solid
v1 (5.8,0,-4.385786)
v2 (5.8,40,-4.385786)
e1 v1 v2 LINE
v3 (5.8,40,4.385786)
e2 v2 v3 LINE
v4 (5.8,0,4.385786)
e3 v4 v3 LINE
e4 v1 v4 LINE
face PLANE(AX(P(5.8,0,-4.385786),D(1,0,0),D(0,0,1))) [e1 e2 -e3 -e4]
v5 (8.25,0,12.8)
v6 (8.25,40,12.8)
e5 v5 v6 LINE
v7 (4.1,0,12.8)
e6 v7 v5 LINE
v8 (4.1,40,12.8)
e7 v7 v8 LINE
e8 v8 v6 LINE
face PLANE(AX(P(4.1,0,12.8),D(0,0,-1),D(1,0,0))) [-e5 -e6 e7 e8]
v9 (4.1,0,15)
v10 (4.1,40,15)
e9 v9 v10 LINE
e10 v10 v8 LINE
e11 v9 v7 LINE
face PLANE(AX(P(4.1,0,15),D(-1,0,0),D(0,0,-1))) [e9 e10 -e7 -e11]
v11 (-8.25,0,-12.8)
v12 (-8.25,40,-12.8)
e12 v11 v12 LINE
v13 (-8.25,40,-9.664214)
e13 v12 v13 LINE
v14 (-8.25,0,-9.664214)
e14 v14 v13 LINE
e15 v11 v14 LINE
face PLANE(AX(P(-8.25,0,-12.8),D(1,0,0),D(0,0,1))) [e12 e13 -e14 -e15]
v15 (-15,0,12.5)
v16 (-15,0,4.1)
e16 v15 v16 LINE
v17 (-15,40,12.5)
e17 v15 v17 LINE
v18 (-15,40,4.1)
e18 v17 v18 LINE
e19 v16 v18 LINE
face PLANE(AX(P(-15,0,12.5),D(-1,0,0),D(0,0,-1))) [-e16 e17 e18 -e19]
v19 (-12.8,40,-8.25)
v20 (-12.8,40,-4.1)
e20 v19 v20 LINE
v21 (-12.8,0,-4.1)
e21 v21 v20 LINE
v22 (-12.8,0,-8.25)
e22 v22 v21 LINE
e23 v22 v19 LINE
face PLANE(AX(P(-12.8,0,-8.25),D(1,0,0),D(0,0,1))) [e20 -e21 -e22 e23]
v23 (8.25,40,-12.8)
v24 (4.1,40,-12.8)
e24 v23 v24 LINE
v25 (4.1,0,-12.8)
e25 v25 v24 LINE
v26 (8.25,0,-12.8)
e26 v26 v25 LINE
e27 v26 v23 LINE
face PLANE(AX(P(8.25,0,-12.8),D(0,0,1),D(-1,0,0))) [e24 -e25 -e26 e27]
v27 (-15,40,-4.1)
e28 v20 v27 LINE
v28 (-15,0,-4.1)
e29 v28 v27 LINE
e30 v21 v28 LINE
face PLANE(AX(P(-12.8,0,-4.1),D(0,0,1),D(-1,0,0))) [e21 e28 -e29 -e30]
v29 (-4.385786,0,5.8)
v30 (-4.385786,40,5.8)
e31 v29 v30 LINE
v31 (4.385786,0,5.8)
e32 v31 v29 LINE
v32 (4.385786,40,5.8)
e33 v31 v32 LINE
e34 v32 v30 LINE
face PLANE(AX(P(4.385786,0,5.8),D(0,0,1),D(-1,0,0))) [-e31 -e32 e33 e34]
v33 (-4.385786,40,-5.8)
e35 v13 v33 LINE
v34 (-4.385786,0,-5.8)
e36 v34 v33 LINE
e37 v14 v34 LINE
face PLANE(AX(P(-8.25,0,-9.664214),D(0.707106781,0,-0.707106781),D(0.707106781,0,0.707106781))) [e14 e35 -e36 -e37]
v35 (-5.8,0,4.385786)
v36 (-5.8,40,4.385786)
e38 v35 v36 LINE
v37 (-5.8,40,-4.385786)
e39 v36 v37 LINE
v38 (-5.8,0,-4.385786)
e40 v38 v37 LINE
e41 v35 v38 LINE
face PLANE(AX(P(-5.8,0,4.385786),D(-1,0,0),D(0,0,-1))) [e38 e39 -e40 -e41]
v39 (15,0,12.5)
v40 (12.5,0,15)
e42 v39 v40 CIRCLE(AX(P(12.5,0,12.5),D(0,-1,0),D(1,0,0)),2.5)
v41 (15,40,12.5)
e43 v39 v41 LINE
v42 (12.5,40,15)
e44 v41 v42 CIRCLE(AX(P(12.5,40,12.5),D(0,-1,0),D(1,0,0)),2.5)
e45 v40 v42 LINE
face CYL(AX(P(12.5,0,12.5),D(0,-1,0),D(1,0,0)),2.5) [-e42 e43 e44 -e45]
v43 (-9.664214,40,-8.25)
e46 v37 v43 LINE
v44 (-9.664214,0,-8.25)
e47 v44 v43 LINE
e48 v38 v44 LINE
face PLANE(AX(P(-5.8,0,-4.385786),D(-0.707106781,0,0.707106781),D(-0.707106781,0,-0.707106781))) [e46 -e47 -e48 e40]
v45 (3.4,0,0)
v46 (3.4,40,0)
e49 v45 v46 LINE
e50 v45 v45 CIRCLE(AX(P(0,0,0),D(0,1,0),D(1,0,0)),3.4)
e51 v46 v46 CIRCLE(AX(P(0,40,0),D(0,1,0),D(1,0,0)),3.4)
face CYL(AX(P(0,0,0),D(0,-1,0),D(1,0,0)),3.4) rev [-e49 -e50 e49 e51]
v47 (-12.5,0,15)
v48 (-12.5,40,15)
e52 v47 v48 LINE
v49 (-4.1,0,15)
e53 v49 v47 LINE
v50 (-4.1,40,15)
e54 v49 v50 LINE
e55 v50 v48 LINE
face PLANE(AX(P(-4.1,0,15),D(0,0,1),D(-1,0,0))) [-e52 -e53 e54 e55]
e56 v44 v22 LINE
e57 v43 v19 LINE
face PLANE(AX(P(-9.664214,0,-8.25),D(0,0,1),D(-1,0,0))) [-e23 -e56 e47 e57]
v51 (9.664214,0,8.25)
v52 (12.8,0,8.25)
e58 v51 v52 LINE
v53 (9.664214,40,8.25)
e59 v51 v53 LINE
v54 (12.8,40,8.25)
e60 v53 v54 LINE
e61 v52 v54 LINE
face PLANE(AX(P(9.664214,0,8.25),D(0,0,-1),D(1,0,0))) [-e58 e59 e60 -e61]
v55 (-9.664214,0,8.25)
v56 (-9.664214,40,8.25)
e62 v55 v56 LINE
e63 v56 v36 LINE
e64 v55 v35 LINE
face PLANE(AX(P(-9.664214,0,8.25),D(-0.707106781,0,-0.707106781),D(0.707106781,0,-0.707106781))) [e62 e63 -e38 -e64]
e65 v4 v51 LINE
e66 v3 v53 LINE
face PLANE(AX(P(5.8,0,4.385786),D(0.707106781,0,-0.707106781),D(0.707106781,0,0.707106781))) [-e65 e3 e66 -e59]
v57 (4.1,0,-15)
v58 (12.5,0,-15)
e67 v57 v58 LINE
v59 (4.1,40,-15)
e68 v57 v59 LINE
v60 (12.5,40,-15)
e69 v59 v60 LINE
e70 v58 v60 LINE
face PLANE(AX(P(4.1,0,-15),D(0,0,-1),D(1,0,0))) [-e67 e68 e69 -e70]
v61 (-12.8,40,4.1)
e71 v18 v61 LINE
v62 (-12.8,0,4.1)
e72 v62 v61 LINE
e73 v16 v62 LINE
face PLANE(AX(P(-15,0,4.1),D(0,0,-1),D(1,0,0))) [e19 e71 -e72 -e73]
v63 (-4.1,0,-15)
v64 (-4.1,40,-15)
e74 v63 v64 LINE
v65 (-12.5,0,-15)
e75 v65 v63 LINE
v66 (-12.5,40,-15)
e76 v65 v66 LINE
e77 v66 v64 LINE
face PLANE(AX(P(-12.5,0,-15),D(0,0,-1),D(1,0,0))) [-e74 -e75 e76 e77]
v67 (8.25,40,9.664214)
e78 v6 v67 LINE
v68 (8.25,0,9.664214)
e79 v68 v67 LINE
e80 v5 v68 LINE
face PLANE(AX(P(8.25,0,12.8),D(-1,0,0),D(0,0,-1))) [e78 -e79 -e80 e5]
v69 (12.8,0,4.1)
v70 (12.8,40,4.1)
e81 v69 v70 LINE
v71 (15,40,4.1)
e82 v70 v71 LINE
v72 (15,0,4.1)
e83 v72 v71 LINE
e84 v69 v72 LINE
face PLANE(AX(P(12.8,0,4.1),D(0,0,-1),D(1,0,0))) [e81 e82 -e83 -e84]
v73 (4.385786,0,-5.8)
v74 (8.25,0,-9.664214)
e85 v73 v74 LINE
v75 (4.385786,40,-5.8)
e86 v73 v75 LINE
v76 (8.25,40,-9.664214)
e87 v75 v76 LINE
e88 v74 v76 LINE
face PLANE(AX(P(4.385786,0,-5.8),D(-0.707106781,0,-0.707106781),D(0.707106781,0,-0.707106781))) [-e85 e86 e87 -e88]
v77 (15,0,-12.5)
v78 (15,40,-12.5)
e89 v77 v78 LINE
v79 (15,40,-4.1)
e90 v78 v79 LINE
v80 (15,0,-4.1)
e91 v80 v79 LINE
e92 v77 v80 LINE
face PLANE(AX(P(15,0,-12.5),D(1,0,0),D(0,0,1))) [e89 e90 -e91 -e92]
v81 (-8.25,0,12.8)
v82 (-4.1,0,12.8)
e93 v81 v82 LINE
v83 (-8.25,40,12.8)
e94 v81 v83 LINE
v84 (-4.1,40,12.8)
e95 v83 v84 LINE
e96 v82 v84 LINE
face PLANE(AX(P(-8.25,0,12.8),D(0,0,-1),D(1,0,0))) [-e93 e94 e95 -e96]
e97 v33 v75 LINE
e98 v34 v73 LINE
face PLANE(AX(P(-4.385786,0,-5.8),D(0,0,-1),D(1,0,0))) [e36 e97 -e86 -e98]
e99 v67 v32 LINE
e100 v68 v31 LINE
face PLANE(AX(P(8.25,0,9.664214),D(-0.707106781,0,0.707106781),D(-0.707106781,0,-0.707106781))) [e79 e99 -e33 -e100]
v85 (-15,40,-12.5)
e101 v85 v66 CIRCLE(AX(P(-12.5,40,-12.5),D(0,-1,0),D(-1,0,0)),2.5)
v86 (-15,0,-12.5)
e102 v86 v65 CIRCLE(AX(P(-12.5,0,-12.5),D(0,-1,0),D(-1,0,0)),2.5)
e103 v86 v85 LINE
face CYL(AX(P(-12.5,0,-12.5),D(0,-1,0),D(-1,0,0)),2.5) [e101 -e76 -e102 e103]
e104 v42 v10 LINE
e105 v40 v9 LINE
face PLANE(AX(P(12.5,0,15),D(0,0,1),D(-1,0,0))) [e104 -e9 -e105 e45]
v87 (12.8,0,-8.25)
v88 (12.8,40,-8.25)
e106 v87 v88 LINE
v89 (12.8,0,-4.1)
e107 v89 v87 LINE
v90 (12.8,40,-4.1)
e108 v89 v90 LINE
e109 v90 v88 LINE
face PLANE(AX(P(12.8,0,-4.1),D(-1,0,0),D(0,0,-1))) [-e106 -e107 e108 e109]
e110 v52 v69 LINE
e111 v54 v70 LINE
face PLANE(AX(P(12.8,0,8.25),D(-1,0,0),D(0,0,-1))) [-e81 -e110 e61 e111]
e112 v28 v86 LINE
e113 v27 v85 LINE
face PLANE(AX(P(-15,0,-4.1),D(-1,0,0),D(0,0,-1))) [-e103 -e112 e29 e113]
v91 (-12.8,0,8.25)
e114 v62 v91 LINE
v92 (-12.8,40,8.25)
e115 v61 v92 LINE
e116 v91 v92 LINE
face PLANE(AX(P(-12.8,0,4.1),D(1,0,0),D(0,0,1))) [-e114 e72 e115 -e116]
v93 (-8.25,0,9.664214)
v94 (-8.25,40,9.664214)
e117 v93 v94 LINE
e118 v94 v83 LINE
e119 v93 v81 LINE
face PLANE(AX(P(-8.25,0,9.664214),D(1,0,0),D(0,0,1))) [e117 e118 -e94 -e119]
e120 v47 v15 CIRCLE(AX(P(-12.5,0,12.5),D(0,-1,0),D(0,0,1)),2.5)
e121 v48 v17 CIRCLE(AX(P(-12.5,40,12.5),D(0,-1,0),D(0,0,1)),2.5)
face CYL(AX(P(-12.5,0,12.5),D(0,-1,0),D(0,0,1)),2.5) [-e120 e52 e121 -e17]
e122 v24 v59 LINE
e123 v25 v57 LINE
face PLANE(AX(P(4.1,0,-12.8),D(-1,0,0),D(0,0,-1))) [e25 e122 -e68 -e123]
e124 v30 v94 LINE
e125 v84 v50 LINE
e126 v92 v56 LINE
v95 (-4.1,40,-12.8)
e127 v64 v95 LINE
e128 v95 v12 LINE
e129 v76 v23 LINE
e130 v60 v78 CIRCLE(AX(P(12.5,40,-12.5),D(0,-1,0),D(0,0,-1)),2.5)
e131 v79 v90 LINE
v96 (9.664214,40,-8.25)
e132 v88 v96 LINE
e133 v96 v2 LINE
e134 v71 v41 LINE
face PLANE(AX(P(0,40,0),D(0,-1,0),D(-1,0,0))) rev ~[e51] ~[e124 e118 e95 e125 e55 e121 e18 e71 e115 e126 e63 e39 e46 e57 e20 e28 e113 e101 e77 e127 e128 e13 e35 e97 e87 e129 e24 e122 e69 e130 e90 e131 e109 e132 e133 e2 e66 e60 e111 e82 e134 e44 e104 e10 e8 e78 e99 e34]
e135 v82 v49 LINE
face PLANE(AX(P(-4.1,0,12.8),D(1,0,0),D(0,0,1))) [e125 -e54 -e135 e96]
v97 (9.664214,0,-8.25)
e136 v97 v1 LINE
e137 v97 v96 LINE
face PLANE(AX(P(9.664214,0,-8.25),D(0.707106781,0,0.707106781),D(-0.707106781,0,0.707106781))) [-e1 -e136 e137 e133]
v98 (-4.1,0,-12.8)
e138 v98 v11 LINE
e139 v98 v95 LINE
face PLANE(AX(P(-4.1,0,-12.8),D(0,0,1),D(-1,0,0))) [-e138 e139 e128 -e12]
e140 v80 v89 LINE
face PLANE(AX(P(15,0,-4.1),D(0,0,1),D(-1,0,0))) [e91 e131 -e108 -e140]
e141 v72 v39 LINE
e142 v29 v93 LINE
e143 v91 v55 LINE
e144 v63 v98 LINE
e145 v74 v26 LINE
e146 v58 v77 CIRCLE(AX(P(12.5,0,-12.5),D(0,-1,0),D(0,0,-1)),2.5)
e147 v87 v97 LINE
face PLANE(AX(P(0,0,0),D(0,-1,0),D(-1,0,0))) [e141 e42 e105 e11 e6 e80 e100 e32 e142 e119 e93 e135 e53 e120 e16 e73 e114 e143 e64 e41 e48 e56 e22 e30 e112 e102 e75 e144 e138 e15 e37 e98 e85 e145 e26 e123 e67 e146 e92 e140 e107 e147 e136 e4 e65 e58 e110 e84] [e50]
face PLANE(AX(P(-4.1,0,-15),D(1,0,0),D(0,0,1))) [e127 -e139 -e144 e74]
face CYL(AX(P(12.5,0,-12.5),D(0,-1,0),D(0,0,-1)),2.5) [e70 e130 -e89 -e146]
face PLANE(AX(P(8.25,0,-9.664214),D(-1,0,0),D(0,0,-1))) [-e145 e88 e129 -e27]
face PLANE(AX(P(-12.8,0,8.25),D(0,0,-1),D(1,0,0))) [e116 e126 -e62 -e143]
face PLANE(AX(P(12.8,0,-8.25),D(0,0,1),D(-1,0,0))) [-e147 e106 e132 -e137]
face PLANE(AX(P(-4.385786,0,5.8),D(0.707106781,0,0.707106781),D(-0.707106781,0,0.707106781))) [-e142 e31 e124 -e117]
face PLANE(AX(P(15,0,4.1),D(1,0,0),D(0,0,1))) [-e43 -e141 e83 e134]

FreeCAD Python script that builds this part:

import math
import FreeCAD as App
import Part
import Sketcher
Q = App.Units.Quantity

doc = App.newDocument("Part")
params = doc.addObject("Spreadsheet::Sheet", "Params")
for row, (alias, value) in enumerate([
    ("sketch1_diameter", "6.8 mm"),
    ("sketch1_radius", "2.5 mm"),
    ("sketch1_width", "2.2 mm"),
    ("sketch1_width2", "8.4 mm"),
    ("sketch1_width3", "4.15 mm"),
    ("pad1_length", "40 mm"),
], start=1):
    params.set(f"A{row}", alias)
    params.set(f"B{row}", "=" + value)
    params.setAlias(f"B{row}", alias)

body = doc.addObject("PartDesign::Body", "Body")

sketch1 = body.newObject("Sketcher::SketchObject", "Sketch")
sketch1.AttachmentSupport = (doc.getObject("XZ_Plane"), [""])
sketch1.MapMode = "FlatFace"
sketch1.addGeometry([
    Part.LineSegment(App.Vector(5.8, 4.4, 0), App.Vector(5.8, -4.4, 0)),
    Part.LineSegment(App.Vector(5.8, -4.4, 0), App.Vector(9.7, -8.2, 0)),
    Part.LineSegment(App.Vector(9.7, -8.2, 0), App.Vector(12.8, -8.2, 0)),
    Part.LineSegment(App.Vector(12.8, -8.2, 0), App.Vector(12.8, -4.1, 0)),
    Part.LineSegment(App.Vector(12.8, -4.1, 0), App.Vector(15, -4.1, 0)),
    Part.LineSegment(App.Vector(15, -4.1, 0), App.Vector(15, -12.5, 0)),
    Part.ArcOfCircle(Part.Circle(App.Vector(12.5, -12.5, 0), App.Vector(0, 0, 1), 2.5), math.radians(-90), math.radians(0)),
    Part.LineSegment(App.Vector(12.5, -15, 0), App.Vector(4.1, -15, 0)),
    Part.LineSegment(App.Vector(4.1, -15, 0), App.Vector(4.1, -12.8, 0)),
    Part.LineSegment(App.Vector(4.1, -12.8, 0), App.Vector(8.2, -12.8, 0)),
    Part.LineSegment(App.Vector(8.2, -12.8, 0), App.Vector(8.2, -9.7, 0)),
    Part.LineSegment(App.Vector(8.2, -9.7, 0), App.Vector(4.4, -5.8, 0)),
    Part.LineSegment(App.Vector(4.4, -5.8, 0), App.Vector(-4.4, -5.8, 0)),
    Part.LineSegment(App.Vector(-4.4, -5.8, 0), App.Vector(-8.2, -9.7, 0)),
    Part.LineSegment(App.Vector(-8.2, -9.7, 0), App.Vector(-8.2, -12.8, 0)),
    Part.LineSegment(App.Vector(-8.2, -12.8, 0), App.Vector(-4.1, -12.8, 0)),
    Part.LineSegment(App.Vector(-4.1, -12.8, 0), App.Vector(-4.1, -15, 0)),
    Part.LineSegment(App.Vector(-4.1, -15, 0), App.Vector(-12.5, -15, 0)),
    Part.ArcOfCircle(Part.Circle(App.Vector(-12.5, -12.5, 0), App.Vector(0, 0, 1), 2.5), math.radians(180), math.radians(270)),
    Part.LineSegment(App.Vector(-15, -12.5, 0), App.Vector(-15, -4.1, 0)),
    Part.LineSegment(App.Vector(-15, -4.1, 0), App.Vector(-12.8, -4.1, 0)),
    Part.LineSegment(App.Vector(-12.8, -4.1, 0), App.Vector(-12.8, -8.2, 0)),
    Part.LineSegment(App.Vector(-12.8, -8.2, 0), App.Vector(-9.7, -8.2, 0)),
    Part.LineSegment(App.Vector(-9.7, -8.2, 0), App.Vector(-5.8, -4.4, 0)),
    Part.LineSegment(App.Vector(-5.8, -4.4, 0), App.Vector(-5.8, 4.4, 0)),
    Part.LineSegment(App.Vector(-5.8, 4.4, 0), App.Vector(-9.7, 8.2, 0)),
    Part.LineSegment(App.Vector(-9.7, 8.2, 0), App.Vector(-12.8, 8.2, 0)),
    Part.LineSegment(App.Vector(-12.8, 8.2, 0), App.Vector(-12.8, 4.1, 0)),
    Part.LineSegment(App.Vector(-12.8, 4.1, 0), App.Vector(-15, 4.1, 0)),
    Part.LineSegment(App.Vector(-15, 4.1, 0), App.Vector(-15, 12.5, 0)),
    Part.ArcOfCircle(Part.Circle(App.Vector(-12.5, 12.5, 0), App.Vector(0, 0, 1), 2.5), math.radians(90), math.radians(180)),
    Part.LineSegment(App.Vector(-12.5, 15, 0), App.Vector(-4.1, 15, 0)),
    Part.LineSegment(App.Vector(-4.1, 15, 0), App.Vector(-4.1, 12.8, 0)),
    Part.LineSegment(App.Vector(-4.1, 12.8, 0), App.Vector(-8.2, 12.8, 0)),
    Part.LineSegment(App.Vector(-8.2, 12.8, 0), App.Vector(-8.2, 9.7, 0)),
    Part.LineSegment(App.Vector(-8.2, 9.7, 0), App.Vector(-4.4, 5.8, 0)),
    Part.LineSegment(App.Vector(-4.4, 5.8, 0), App.Vector(4.4, 5.8, 0)),
    Part.LineSegment(App.Vector(4.4, 5.8, 0), App.Vector(8.2, 9.7, 0)),
    Part.LineSegment(App.Vector(8.2, 9.7, 0), App.Vector(8.2, 12.8, 0)),
    Part.LineSegment(App.Vector(8.2, 12.8, 0), App.Vector(4.1, 12.8, 0)),
    Part.LineSegment(App.Vector(4.1, 12.8, 0), App.Vector(4.1, 15, 0)),
    Part.LineSegment(App.Vector(4.1, 15, 0), App.Vector(12.5, 15, 0)),
    Part.ArcOfCircle(Part.Circle(App.Vector(12.5, 12.5, 0), App.Vector(0, 0, 1), 2.5), math.radians(0), math.radians(90)),
    Part.LineSegment(App.Vector(15, 12.5, 0), App.Vector(15, 4.1, 0)),
    Part.LineSegment(App.Vector(15, 4.1, 0), App.Vector(12.8, 4.1, 0)),
    Part.LineSegment(App.Vector(12.8, 4.1, 0), App.Vector(12.8, 8.2, 0)),
    Part.LineSegment(App.Vector(12.8, 8.2, 0), App.Vector(9.7, 8.2, 0)),
    Part.LineSegment(App.Vector(9.7, 8.2, 0), App.Vector(5.8, 4.4, 0)),
    Part.Circle(App.Vector(0, 0, 0), App.Vector(0, 0, 1), 3.4),
], False)
sketch1.addConstraint([
    Sketcher.Constraint("Coincident", 0, 2, 1, 1),
    Sketcher.Constraint("Coincident", 1, 2, 2, 1),
    Sketcher.Constraint("Coincident", 2, 2, 3, 1),
    Sketcher.Constraint("Coincident", 3, 2, 4, 1),
    Sketcher.Constraint("Coincident", 4, 2, 5, 1),
    Sketcher.Constraint("Tangent", 5, 2, 6, 2),
    Sketcher.Constraint("Tangent", 6, 1, 7, 1),
    Sketcher.Constraint("Coincident", 7, 2, 8, 1),
    Sketcher.Constraint("Coincident", 8, 2, 9, 1),
    Sketcher.Constraint("Coincident", 9, 2, 10, 1),
    Sketcher.Constraint("Coincident", 10, 2, 11, 1),
    Sketcher.Constraint("Coincident", 11, 2, 12, 1),
    Sketcher.Constraint("Coincident", 12, 2, 13, 1),
    Sketcher.Constraint("Coincident", 13, 2, 14, 1),
    Sketcher.Constraint("Coincident", 14, 2, 15, 1),
    Sketcher.Constraint("Coincident", 15, 2, 16, 1),
    Sketcher.Constraint("Coincident", 16, 2, 17, 1),
    Sketcher.Constraint("Tangent", 17, 2, 18, 2),
    Sketcher.Constraint("Tangent", 18, 1, 19, 1),
    Sketcher.Constraint("Coincident", 19, 2, 20, 1),
    Sketcher.Constraint("Coincident", 20, 2, 21, 1),
    Sketcher.Constraint("Coincident", 21, 2, 22, 1),
    Sketcher.Constraint("Coincident", 22, 2, 23, 1),
    Sketcher.Constraint("Coincident", 23, 2, 24, 1),
    Sketcher.Constraint("Coincident", 24, 2, 25, 1),
    Sketcher.Constraint("Coincident", 25, 2, 26, 1),
    Sketcher.Constraint("Coincident", 26, 2, 27, 1),
    Sketcher.Constraint("Coincident", 27, 2, 28, 1),
    Sketcher.Constraint("Coincident", 28, 2, 29, 1),
    Sketcher.Constraint("Tangent", 29, 2, 30, 2),
    Sketcher.Constraint("Tangent", 30, 1, 31, 1),
    Sketcher.Constraint("Coincident", 31, 2, 32, 1),
    Sketcher.Constraint("Coincident", 32, 2, 33, 1),
    Sketcher.Constraint("Coincident", 33, 2, 34, 1),
    Sketcher.Constraint("Coincident", 34, 2, 35, 1),
    Sketcher.Constraint("Coincident", 35, 2, 36, 1),
    Sketcher.Constraint("Coincident", 36, 2, 37, 1),
    Sketcher.Constraint("Coincident", 37, 2, 38, 1),
    Sketcher.Constraint("Coincident", 38, 2, 39, 1),
    Sketcher.Constraint("Coincident", 39, 2, 40, 1),
    Sketcher.Constraint("Coincident", 40, 2, 41, 1),
    Sketcher.Constraint("Tangent", 41, 2, 42, 2),
    Sketcher.Constraint("Tangent", 42, 1, 43, 1),
    Sketcher.Constraint("Coincident", 43, 2, 44, 1),
    Sketcher.Constraint("Coincident", 44, 2, 45, 1),
    Sketcher.Constraint("Coincident", 45, 2, 46, 1),
    Sketcher.Constraint("Coincident", 46, 2, 47, 1),
    Sketcher.Constraint("Coincident", 47, 2, 0, 1),
    Sketcher.Constraint("Vertical", 0),
    Sketcher.Constraint("Horizontal", 2),
    Sketcher.Constraint("Vertical", 3),
    Sketcher.Constraint("Horizontal", 4),
    Sketcher.Constraint("Vertical", 5),
    Sketcher.Constraint("Horizontal", 7),
    Sketcher.Constraint("Vertical", 8),
    Sketcher.Constraint("Horizontal", 9),
    Sketcher.Constraint("Vertical", 10),
    Sketcher.Constraint("Horizontal", 12),
    Sketcher.Constraint("Vertical", 14),
    Sketcher.Constraint("Horizontal", 15),
    Sketcher.Constraint("Vertical", 16),
    Sketcher.Constraint("Horizontal", 17),
    Sketcher.Constraint("Vertical", 19),
    Sketcher.Constraint("Horizontal", 20),
    Sketcher.Constraint("Vertical", 21),
    Sketcher.Constraint("Horizontal", 22),
    Sketcher.Constraint("Vertical", 24),
    Sketcher.Constraint("Horizontal", 26),
    Sketcher.Constraint("Vertical", 27),
    Sketcher.Constraint("Horizontal", 28),
    Sketcher.Constraint("Vertical", 29),
    Sketcher.Constraint("Horizontal", 31),
    Sketcher.Constraint("Vertical", 32),
    Sketcher.Constraint("Horizontal", 33),
    Sketcher.Constraint("Vertical", 34),
    Sketcher.Constraint("Horizontal", 36),
    Sketcher.Constraint("Vertical", 38),
    Sketcher.Constraint("Horizontal", 39),
    Sketcher.Constraint("Vertical", 40),
    Sketcher.Constraint("Horizontal", 41),
    Sketcher.Constraint("Vertical", 43),
    Sketcher.Constraint("Horizontal", 44),
    Sketcher.Constraint("Vertical", 45),
    Sketcher.Constraint("Horizontal", 46),
    Sketcher.Constraint("Coincident", 48, 3, -1, 1),
    Sketcher.Constraint("Equal", 6, 18),
    Sketcher.Constraint("Equal", 18, 30),
    Sketcher.Constraint("Equal", 30, 42),
    Sketcher.Constraint("Symmetric", 6, 3, 30, 3, -1, 1),
    Sketcher.Constraint("Symmetric", 18, 3, 42, 3, -1, 1),
    Sketcher.Constraint("Symmetric", 0, 2, 24, 2, -1, 1),
    Sketcher.Constraint("Symmetric", 1, 2, 25, 2, -1, 1),
    Sketcher.Constraint("Symmetric", 3, 2, 27, 2, -1, 1),
    Sketcher.Constraint("Symmetric", 8, 2, 32, 2, -1, 1),
    Sketcher.Constraint("Symmetric", 10, 2, 34, 2, -1, 1),
    Sketcher.Constraint("Symmetric", 11, 2, 35, 2, -1, 1),
    Sketcher.Constraint("Symmetric", 13, 2, 37, 2, -1, 1),
    Sketcher.Constraint("Symmetric", 15, 2, 39, 2, -1, 1),
    Sketcher.Constraint("Symmetric", 20, 2, 44, 2, -1, 1),
    Sketcher.Constraint("Symmetric", 22, 2, 46, 2, -1, 1),
    Sketcher.Constraint("Symmetric", 6, 3, 18, 3, -2),
    Sketcher.Constraint("Symmetric", 10, 2, 13, 2, -2),
    Sketcher.Constraint("Symmetric", 8, 2, 15, 2, -2),
    Sketcher.Constraint("Symmetric", 3, 2, 20, 2, -2),
    Sketcher.Constraint("Symmetric", 1, 2, 22, 2, -2),
    Sketcher.Constraint("Parallel", 1, 11),
    Sketcher.Constraint("Perpendicular", 11, 13),
    Sketcher.Constraint("Parallel", 13, 23),
    Sketcher.Constraint("Perpendicular", 35, 37),
    Sketcher.Constraint("Parallel", 37, 47),
    Sketcher.Constraint("Horizontal", 0, 2, 23, 2),
    Sketcher.Constraint("Equal", 36, 0),
    Sketcher.Constraint("Equal", 39, 3),
    Sketcher.Constraint("Equal", 41, 5),
    Sketcher.Constraint("Equal", 44, 8),
    Sketcher.Constraint("Equal", 46, 10),
    Sketcher.Constraint("Equal", 1, 11),
    Sketcher.Constraint("Diameter", 48, Q("6.8 mm")),
    Sketcher.Constraint("Radius", 6, Q("2.5 mm")),
    Sketcher.Constraint("DistanceX", 4, 1, 4, 2, Q("2.2 mm")),
    Sketcher.Constraint("DistanceX", 7, 2, 7, 1, Q("8.4 mm")),
    Sketcher.Constraint("DistanceX", -1, 1, 4, 2, Q("15 mm")),
    Sketcher.Constraint("DistanceX", 0, 2, 2, 2, Q("7 mm")),
    Sketcher.Constraint("DistanceX", 9, 1, 9, 2, Q("4.15 mm")),
    Sketcher.Constraint("DistanceX", 2, 1, 2, 2, Q("3.135786 mm")),
])
sketch1.setExpression("Constraints[117]", "Params.sketch1_diameter")
sketch1.setExpression("Constraints[118]", "Params.sketch1_radius")
sketch1.setExpression("Constraints[119]", "Params.sketch1_width")
sketch1.setExpression("Constraints[120]", "Params.sketch1_width2")
sketch1.setExpression("Constraints[123]", "Params.sketch1_width3")
pad1 = body.newObject("PartDesign::Pad", "Pad")
pad1.Profile = sketch1
pad1.setExpression("Length", "Params.pad1_length")
pad1.Reversed = True

doc.recompute()
